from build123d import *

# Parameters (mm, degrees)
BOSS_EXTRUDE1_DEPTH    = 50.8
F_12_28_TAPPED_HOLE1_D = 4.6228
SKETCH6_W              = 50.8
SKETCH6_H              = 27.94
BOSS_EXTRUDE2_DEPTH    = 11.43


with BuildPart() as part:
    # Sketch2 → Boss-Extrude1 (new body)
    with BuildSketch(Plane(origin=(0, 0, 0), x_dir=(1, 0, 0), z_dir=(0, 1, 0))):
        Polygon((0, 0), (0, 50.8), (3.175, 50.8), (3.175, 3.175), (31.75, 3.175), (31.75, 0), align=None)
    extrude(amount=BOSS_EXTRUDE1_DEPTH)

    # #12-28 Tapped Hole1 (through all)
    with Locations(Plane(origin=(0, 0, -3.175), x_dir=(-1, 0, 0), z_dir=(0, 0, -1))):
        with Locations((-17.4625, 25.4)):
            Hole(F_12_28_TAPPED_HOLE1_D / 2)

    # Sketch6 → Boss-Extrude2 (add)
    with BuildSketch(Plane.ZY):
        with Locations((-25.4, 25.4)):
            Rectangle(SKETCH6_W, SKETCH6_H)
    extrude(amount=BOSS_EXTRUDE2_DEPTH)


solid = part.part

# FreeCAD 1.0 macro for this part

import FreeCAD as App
import Part
import Sketcher
Q = App.Units.Quantity

doc = App.newDocument("Part")
body = doc.addObject("PartDesign::Body", "Body")

sketch1 = doc.addObject("Sketcher::SketchObject", "Sketch")
body.addObject(sketch1)
sketch1.AttachmentSupport = (doc.XZ_Plane, [""])
sketch1.MapMode = "FlatFace"
sketch1.addGeometry(Part.LineSegment(App.Vector(0, -50.8, 0), App.Vector(0, 0, 0)), False)
sketch1.addGeometry(Part.LineSegment(App.Vector(0, 0, 0), App.Vector(31.8, 0, 0)), False)
sketch1.addGeometry(Part.LineSegment(App.Vector(31.8, 0, 0), App.Vector(31.8, -3.2, 0)), False)
sketch1.addGeometry(Part.LineSegment(App.Vector(31.8, -3.2, 0), App.Vector(3.2, -3.2, 0)), False)
sketch1.addGeometry(Part.LineSegment(App.Vector(3.2, -3.2, 0), App.Vector(3.2, -50.8, 0)), False)
sketch1.addGeometry(Part.LineSegment(App.Vector(3.2, -50.8, 0), App.Vector(0, -50.8, 0)), False)
sketch1.addConstraint(Sketcher.Constraint("Coincident", 0, 2, 1, 1))
sketch1.addConstraint(Sketcher.Constraint("Coincident", 1, 2, 2, 1))
sketch1.addConstraint(Sketcher.Constraint("Coincident", 2, 2, 3, 1))
sketch1.addConstraint(Sketcher.Constraint("Coincident", 3, 2, 4, 1))
sketch1.addConstraint(Sketcher.Constraint("Coincident", 4, 2, 5, 1))
sketch1.addConstraint(Sketcher.Constraint("Coincident", 5, 2, 0, 1))
sketch1.addConstraint(Sketcher.Constraint("Vertical", 0))
sketch1.addConstraint(Sketcher.Constraint("Horizontal", 1))
sketch1.addConstraint(Sketcher.Constraint("Vertical", 2))
sketch1.addConstraint(Sketcher.Constraint("Horizontal", 3))
sketch1.addConstraint(Sketcher.Constraint("Vertical", 4))
sketch1.addConstraint(Sketcher.Constraint("Horizontal", 5))
sketch1.addConstraint(Sketcher.Constraint("Coincident", 0, 2, -1, 1))
sketch1.addConstraint(Sketcher.Constraint("Equal", 5, 2))
sketch1.addConstraint(Sketcher.Constraint("DistanceY", 0, 1, 0, 2, Q("2 in")))
sketch1.addConstraint(Sketcher.Constraint("DistanceX", 1, 1, 1, 2, Q("1.25 in")))
sketch1.addConstraint(Sketcher.Constraint("DistanceX", 3, 2, 3, 1, Q("1.125 in")))
pad1 = doc.addObject("PartDesign::Pad", "Pad")
body.addObject(pad1)
pad1.Profile = sketch1
pad1.Length = Q("2 in")
pad1.Reversed = True

sketch2 = doc.addObject("Sketcher::SketchObject", "Sketch001")
body.addObject(sketch2)
sketch2.AttachmentSupport = (doc.XY_Plane, [""])
sketch2.MapMode = "FlatFace"
sketch2.AttachmentOffset = App.Placement(App.Vector(0, 0, -0.125 * 25.4), App.Rotation())
sketch2.addGeometry(Part.Circle(App.Vector(17.5, 25.4, 0), App.Vector(0, 0, 1), 2.3), False)
sketch2.addConstraint(Sketcher.Constraint("Diameter", 0, Q("0.182 in")))
sketch2.addConstraint(Sketcher.Constraint("DistanceY", -1, 1, 0, 3, Q("1 in")))
sketch2.addConstraint(Sketcher.Constraint("DistanceX", -1, 1, 0, 3, Q("0.6875 in")))
doc.recompute()
hole = doc.addObject("PartDesign::Hole", "Hole")
body.addObject(hole)
hole.Profile = sketch2
hole.ThreadType = "None"
hole.Diameter = Q("0.182 in")
hole.DepthType = "ThroughAll"
hole.Reversed = True

sketch3 = doc.addObject("Sketcher::SketchObject", "Sketch002")
body.addObject(sketch3)
sketch3.AttachmentSupport = (doc.YZ_Plane, [""])
sketch3.MapMode = "FlatFace"
sketch3.addGeometry(Part.LineSegment(App.Vector(39, -51, 0), App.Vector(11, -51, 0)), False)
sketch3.addGeometry(Part.LineSegment(App.Vector(11, -51, 0), App.Vector(11, 0, 0)), False)
sketch3.addGeometry(Part.LineSegment(App.Vector(11, 0, 0), App.Vector(39, 0, 0)), False)
sketch3.addGeometry(Part.LineSegment(App.Vector(39, 0, 0), App.Vector(39, -51, 0)), False)
sketch3.addConstraint(Sketcher.Constraint("Coincident", 0, 2, 1, 1))
sketch3.addConstraint(Sketcher.Constraint("Coincident", 1, 2, 2, 1))
sketch3.addConstraint(Sketcher.Constraint("Coincident", 2, 2, 3, 1))
sketch3.addConstraint(Sketcher.Constraint("Coincident", 3, 2, 0, 1))
sketch3.addConstraint(Sketcher.Constraint("Horizontal", 0))
sketch3.addConstraint(Sketcher.Constraint("Vertical", 1))
sketch3.addConstraint(Sketcher.Constraint("Horizontal", 2))
sketch3.addConstraint(Sketcher.Constraint("Vertical", 3))
sketch3.addConstraint(Sketcher.Constraint("PointOnObject", 1, 2, -1))
sketch3.addConstraint(Sketcher.Constraint("DistanceY", 1, 1, 1, 2, Q("2 in")))
sketch3.addConstraint(Sketcher.Constraint("DistanceX", 0, 2, 0, 1, Q("1.1 in")))
sketch3.addConstraint(Sketcher.Constraint("DistanceX", -1, 1, 0, 2, Q("0.45 in")))
pad2 = doc.addObject("PartDesign::Pad", "Pad001")
body.addObject(pad2)
pad2.Profile = sketch3
pad2.Length = Q("0.45 in")
pad2.Reversed = True

doc.recompute()
